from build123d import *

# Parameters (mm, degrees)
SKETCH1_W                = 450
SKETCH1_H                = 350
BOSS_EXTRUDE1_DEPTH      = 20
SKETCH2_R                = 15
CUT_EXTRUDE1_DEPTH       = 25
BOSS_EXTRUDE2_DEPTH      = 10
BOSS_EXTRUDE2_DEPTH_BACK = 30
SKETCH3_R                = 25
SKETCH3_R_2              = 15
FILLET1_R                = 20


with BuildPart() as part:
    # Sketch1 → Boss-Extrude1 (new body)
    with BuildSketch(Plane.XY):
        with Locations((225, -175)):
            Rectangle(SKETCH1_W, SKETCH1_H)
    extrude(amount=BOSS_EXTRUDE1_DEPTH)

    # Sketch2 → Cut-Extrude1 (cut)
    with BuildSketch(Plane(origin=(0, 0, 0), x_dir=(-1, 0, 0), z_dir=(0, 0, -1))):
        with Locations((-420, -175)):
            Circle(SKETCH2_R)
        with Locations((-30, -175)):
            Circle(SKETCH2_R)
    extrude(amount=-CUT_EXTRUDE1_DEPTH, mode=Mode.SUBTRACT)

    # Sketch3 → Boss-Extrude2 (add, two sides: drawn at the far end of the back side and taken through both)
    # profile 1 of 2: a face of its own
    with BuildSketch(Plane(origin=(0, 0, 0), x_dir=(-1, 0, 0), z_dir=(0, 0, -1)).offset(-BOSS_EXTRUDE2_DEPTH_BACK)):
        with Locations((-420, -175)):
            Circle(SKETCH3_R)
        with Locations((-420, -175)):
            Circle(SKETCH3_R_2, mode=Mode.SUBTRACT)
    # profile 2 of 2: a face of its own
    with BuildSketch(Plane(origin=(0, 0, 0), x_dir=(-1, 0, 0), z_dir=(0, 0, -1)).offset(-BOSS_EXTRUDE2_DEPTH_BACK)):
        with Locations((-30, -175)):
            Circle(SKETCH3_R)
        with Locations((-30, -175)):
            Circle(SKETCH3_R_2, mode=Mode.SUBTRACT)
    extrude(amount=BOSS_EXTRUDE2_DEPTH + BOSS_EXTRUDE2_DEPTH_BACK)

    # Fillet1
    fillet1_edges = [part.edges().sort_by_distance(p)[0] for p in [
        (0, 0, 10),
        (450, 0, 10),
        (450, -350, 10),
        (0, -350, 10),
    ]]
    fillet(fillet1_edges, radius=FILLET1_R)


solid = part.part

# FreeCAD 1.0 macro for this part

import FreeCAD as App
import Part
import Sketcher

V = App.Vector


def edges_at(feature, points):
    """Names of the edges that pass closest to the given points."""
    edges = feature.Shape.Edges
    near = lambda p: min(range(len(edges)), key=lambda i: edges[i].distToShape(Part.Vertex(*p))[0])
    return sorted({f"Edge{near(p) + 1}" for p in points})


def add_polygon(sketch, points):
    """Adds a closed chain of lines whose ends are joined by coincident constraints."""
    first, n = sketch.GeometryCount, len(points)
    for a, b in zip(points, points[1:] + points[:1]):
        sketch.addGeometry(Part.LineSegment(App.Vector(*a, 0), App.Vector(*b, 0)), False)
    for i in range(n):
        sketch.addConstraint(Sketcher.Constraint("Coincident", first + i, 2, first + (i + 1) % n, 1))

doc = App.newDocument("Part")
body = doc.addObject("PartDesign::Body", "Body")

sketch1 = body.newObject("Sketcher::SketchObject", "Sketch")
sketch1.AttachmentSupport = (doc.getObject("XY_Plane"), [""])
sketch1.MapMode = "FlatFace"
add_polygon(sketch1, [(0, 0), (0, -350), (450, -350), (450, 0)])
sketch1.addConstraint(Sketcher.Constraint("Vertical", 0))
sketch1.addConstraint(Sketcher.Constraint("Horizontal", 1))
sketch1.addConstraint(Sketcher.Constraint("Vertical", 2))
sketch1.addConstraint(Sketcher.Constraint("Horizontal", 3))
sketch1.addConstraint(Sketcher.Constraint("Coincident", 3, 2, -1, 1))
sketch1.addConstraint(Sketcher.Constraint("DistanceX", 1, 1, 1, 2, 450.0))
sketch1.addConstraint(Sketcher.Constraint("DistanceY", 0, 2, 0, 1, 350.0))
pad1 = body.newObject("PartDesign::Pad", "Pad")
pad1.Profile = sketch1
pad1.Length = 20

sketch2 = body.newObject("Sketcher::SketchObject", "Sketch001")
sketch2.AttachmentSupport = (doc.getObject("XY_Plane"), [""])
sketch2.MapMode = "FlatFace"
sketch2.addGeometry(Part.Circle(V(420, -175, 0), V(0, 0, 1), 15), False)
sketch2.addGeometry(Part.Circle(V(30, -175, 0), V(0, 0, 1), 15), False)
sketch2.addConstraint(Sketcher.Constraint("Equal", 0, 1))
sketch2.addConstraint(Sketcher.Constraint("Horizontal", 0, 3, 1, 3))
sketch2.addConstraint(Sketcher.Constraint("Diameter", 0, 30.0))
sketch2.addConstraint(Sketcher.Constraint("DistanceX", -1, 1, 0, 3, 420.0))
sketch2.addConstraint(Sketcher.Constraint("DistanceY", 0, 3, -1, 1, 175.0))
sketch2.addConstraint(Sketcher.Constraint("DistanceX", -1, 1, 1, 3, 30.0))
pocket1 = body.newObject("PartDesign::Pocket", "Pocket")
pocket1.Profile = sketch2
pocket1.Length = 25
pocket1.Reversed = True

sketch3 = body.newObject("Sketcher::SketchObject", "Sketch002")
sketch3.AttachmentSupport = (doc.getObject("XY_Plane"), [""])
sketch3.MapMode = "FlatFace"
sketch3.addGeometry(Part.Circle(V(420, -175, 0), V(0, 0, 1), 25), False)
sketch3.addGeometry(Part.Circle(V(420, -175, 0), V(0, 0, 1), 15), False)
sketch3.addGeometry(Part.Circle(V(30, -175, 0), V(0, 0, 1), 25), False)
sketch3.addGeometry(Part.Circle(V(30, -175, 0), V(0, 0, 1), 15), False)
sketch3.addConstraint(Sketcher.Constraint("Coincident", 1, 3, 0, 3))
sketch3.addConstraint(Sketcher.Constraint("Coincident", 3, 3, 2, 3))
sketch3.addConstraint(Sketcher.Constraint("Equal", 0, 2))
sketch3.addConstraint(Sketcher.Constraint("Equal", 1, 3))
sketch3.addConstraint(Sketcher.Constraint("Horizontal", 1, 3, 2, 3))
sketch3.addConstraint(Sketcher.Constraint("Diameter", 0, 50.0))
sketch3.addConstraint(Sketcher.Constraint("Diameter", 1, 30.0))
sketch3.addConstraint(Sketcher.Constraint("DistanceX", -1, 1, 0, 3, 420.0))
sketch3.addConstraint(Sketcher.Constraint("DistanceY", 0, 3, -1, 1, 175.0))
sketch3.addConstraint(Sketcher.Constraint("DistanceX", -1, 1, 2, 3, 30.0))
pad2 = body.newObject("PartDesign::Pad", "Pad001")
pad2.Profile = sketch3
pad2.Type = "TwoLengths"
pad2.Length = 10
pad2.Length2 = 30
pad2.Reversed = True
doc.recompute()

fillet = body.newObject("PartDesign::Fillet", "Fillet")
fillet.Base = (pad2, edges_at(pad2, [
    (0, 0, 10),
    (450, 0, 10),
    (450, -350, 10),
    (0, -350, 10),
]))
fillet.Radius = 20

doc.recompute()
